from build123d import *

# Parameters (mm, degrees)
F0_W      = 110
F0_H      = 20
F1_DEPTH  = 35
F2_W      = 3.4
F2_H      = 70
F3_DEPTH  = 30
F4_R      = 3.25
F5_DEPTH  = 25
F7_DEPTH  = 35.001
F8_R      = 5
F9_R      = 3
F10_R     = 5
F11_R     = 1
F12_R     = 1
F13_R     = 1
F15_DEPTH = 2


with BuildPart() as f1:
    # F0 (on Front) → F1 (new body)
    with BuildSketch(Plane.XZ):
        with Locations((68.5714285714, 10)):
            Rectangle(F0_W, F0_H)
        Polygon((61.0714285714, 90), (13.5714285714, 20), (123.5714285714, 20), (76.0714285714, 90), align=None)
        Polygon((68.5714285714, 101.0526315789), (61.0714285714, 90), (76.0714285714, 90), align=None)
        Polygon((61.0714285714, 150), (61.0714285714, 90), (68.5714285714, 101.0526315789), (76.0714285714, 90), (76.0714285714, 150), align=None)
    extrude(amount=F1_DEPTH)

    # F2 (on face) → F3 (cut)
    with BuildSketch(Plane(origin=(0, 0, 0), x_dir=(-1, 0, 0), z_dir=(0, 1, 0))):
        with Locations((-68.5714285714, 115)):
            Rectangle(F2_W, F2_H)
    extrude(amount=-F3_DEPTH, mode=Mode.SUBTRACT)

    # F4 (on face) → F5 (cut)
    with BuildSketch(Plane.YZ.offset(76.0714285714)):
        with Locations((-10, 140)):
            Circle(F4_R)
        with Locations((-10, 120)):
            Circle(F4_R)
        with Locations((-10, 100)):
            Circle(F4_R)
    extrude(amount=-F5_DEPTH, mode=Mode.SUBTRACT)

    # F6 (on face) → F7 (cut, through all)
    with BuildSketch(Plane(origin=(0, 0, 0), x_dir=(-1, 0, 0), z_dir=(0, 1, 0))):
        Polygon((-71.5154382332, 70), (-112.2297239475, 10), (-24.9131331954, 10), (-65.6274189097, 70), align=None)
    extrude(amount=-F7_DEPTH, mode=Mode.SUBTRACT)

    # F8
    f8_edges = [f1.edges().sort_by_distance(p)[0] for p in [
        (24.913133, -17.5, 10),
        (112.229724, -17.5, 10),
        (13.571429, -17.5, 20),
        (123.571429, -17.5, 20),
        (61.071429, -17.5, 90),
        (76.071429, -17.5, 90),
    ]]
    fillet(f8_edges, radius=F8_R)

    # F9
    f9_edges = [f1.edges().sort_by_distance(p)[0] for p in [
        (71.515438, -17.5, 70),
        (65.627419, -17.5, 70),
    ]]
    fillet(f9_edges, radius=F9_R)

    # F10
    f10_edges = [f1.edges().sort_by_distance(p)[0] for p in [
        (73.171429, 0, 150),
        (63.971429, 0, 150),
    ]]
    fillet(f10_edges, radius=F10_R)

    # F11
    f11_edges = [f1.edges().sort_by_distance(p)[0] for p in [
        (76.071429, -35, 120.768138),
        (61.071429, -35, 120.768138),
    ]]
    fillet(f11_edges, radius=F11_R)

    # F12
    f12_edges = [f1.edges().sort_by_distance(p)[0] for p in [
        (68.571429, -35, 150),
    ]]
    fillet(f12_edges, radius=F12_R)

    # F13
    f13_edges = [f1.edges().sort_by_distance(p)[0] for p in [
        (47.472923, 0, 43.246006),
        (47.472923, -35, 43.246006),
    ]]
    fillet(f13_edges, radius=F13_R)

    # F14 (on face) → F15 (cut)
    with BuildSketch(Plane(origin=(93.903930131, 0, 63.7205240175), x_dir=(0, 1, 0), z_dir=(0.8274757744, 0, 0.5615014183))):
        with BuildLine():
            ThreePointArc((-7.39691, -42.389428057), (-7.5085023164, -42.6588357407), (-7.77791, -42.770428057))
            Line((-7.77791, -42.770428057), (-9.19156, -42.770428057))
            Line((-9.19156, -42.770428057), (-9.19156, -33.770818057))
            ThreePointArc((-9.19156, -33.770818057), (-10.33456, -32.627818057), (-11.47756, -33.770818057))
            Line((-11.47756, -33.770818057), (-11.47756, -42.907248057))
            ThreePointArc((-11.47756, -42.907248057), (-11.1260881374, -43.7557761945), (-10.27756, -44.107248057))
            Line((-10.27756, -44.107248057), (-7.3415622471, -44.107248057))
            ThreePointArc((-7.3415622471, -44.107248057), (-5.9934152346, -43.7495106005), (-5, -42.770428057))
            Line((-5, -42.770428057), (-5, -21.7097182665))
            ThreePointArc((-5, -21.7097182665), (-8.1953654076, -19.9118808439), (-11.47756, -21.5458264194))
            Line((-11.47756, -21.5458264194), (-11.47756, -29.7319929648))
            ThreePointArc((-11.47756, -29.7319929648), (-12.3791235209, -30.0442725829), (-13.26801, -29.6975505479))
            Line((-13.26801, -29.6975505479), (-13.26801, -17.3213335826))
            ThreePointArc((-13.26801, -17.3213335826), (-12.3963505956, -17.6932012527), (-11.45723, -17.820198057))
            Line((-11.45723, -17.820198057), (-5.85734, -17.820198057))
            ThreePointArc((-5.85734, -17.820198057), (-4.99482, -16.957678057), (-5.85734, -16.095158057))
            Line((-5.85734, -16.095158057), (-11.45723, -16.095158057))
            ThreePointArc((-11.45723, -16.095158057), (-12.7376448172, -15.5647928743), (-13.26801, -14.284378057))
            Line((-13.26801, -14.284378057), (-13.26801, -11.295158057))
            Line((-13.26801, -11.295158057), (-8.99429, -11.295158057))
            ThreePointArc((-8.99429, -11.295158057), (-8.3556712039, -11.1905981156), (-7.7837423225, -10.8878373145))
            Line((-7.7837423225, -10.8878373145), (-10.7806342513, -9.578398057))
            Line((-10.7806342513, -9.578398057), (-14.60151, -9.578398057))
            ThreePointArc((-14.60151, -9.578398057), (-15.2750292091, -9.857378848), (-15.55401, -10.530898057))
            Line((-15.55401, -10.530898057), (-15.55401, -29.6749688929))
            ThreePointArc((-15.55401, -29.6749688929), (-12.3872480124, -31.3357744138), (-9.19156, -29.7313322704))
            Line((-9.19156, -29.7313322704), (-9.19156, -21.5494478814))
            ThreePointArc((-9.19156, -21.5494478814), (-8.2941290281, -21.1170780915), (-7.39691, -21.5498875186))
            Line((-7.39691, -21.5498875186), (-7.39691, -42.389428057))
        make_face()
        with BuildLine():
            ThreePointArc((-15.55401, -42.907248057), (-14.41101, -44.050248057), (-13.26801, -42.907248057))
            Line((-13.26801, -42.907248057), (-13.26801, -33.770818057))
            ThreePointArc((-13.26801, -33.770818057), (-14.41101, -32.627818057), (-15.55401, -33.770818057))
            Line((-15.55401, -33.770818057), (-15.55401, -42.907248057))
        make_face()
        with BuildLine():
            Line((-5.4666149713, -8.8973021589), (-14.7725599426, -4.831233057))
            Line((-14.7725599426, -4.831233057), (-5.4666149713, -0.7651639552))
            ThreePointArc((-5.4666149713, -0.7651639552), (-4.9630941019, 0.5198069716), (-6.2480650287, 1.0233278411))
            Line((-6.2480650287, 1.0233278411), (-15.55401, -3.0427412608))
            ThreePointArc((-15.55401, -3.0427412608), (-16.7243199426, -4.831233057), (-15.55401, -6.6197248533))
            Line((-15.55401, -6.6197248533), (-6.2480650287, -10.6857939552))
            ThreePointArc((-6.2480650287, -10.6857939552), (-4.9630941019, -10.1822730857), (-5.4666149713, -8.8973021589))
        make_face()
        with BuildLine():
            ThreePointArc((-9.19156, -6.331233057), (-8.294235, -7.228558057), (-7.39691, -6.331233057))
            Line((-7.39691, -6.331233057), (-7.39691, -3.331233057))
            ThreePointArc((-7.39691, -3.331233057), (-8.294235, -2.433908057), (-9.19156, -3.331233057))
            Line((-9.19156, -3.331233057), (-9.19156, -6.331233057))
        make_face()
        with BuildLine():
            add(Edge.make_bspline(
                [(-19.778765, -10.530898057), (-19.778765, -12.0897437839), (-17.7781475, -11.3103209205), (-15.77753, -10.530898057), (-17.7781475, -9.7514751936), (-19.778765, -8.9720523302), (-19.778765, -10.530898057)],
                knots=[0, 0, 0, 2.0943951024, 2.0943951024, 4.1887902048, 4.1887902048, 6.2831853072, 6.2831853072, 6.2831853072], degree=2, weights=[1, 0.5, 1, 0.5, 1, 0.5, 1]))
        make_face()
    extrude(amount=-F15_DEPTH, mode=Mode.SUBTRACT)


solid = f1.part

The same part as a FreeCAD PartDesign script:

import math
import FreeCAD as App
import Part
import Sketcher

V = App.Vector
Q = App.Units.Quantity


def edges_at(feature, points):
    """Names of the edges that pass closest to the given points."""
    edges = feature.Shape.Edges
    near = lambda p: min(range(len(edges)), key=lambda i: edges[i].distToShape(Part.Vertex(*p))[0])
    return sorted({f"Edge{near(p) + 1}" for p in points})


def add_polygon(sketch, points):
    """Adds a closed chain of lines whose ends are joined by coincident constraints."""
    first, n = sketch.GeometryCount, len(points)
    for a, b in zip(points, points[1:] + points[:1]):
        sketch.addGeometry(Part.LineSegment(App.Vector(*a, 0), App.Vector(*b, 0)), False)
    for i in range(n):
        sketch.addConstraint(Sketcher.Constraint("Coincident", first + i, 2, first + (i + 1) % n, 1))

doc = App.newDocument("Part")
body = doc.addObject("PartDesign::Body", "Body")

# Sketch on XZ plane
sketch1 = doc.addObject("Sketcher::SketchObject", "Sketch")
body.addObject(sketch1)
sketch1.AttachmentSupport = (doc.XZ_Plane, [""])
sketch1.MapMode = "FlatFace"
add_polygon(sketch1, [(14, 20), (14, 0), (124, 0), (124, 20), (76, 90), (76, 150), (61, 150), (61, 90)])  # lines 0-7
sketch1.addConstraint([
    Sketcher.Constraint("Vertical", 0),
    Sketcher.Constraint("Horizontal", 1),
    Sketcher.Constraint("Vertical", 2),
    Sketcher.Constraint("Vertical", 4),
    Sketcher.Constraint("Horizontal", 5),
    Sketcher.Constraint("Vertical", 6),
    Sketcher.Constraint("PointOnObject", 0, 2, -1),
    Sketcher.Constraint("Horizontal", 3, 2, 6, 2),
    Sketcher.Constraint("Horizontal", 2, 2, 7, 2),
    Sketcher.Constraint("Equal", 3, 7),
    Sketcher.Constraint("DistanceX", 1, 1, 1, 2, Q("110 mm")),
    Sketcher.Constraint("DistanceX", 5, 2, 5, 1, Q("15 mm")),
    Sketcher.Constraint("DistanceY", 0, 2, 0, 1, Q("20 mm")),
    Sketcher.Constraint("DistanceY", 4, 1, 4, 2, Q("60 mm")),
    Sketcher.Constraint("DistanceY", -1, 1, 3, 2, Q("90 mm")),
    Sketcher.Constraint("DistanceX", -1, 1, 0, 2, Q("13.571429 mm")),
])
pad1 = doc.addObject("PartDesign::Pad", "Pad")
body.addObject(pad1)
pad1.Profile = sketch1
pad1.Length = 35

# Sketch on XZ plane
sketch2 = doc.addObject("Sketcher::SketchObject", "Sketch001")
body.addObject(sketch2)
sketch2.AttachmentSupport = (doc.XZ_Plane, [""])
sketch2.MapMode = "FlatFace"
add_polygon(sketch2, [(70.3, 150), (70.3, 80), (66.9, 80), (66.9, 150)])  # lines 0-3
sketch2.addConstraint([
    Sketcher.Constraint("Vertical", 0),
    Sketcher.Constraint("Horizontal", 1),
    Sketcher.Constraint("Vertical", 2),
    Sketcher.Constraint("Horizontal", 3),
    Sketcher.Constraint("DistanceY", 0, 2, 0, 1, Q("70 mm")),
    Sketcher.Constraint("DistanceX", 1, 2, 1, 1, Q("3.4 mm")),
    Sketcher.Constraint("DistanceY", -1, 1, 0, 2, Q("80 mm")),
    Sketcher.Constraint("DistanceX", -1, 1, 0, 2, Q("70.271429 mm")),
])
pocket1 = doc.addObject("PartDesign::Pocket", "Pocket")
body.addObject(pocket1)
pocket1.Profile = sketch2
pocket1.Length = 30
pocket1.Reversed = True

# Sketch on YZ plane
sketch3 = doc.addObject("Sketcher::SketchObject", "Sketch002")
body.addObject(sketch3)
sketch3.AttachmentSupport = (doc.YZ_Plane, [""])
sketch3.MapMode = "FlatFace"
sketch3.AttachmentOffset = App.Placement(V(0, 0, 76.071429), App.Rotation())
sketch3.addGeometry([
    Part.Circle(V(-10, 140, 0), V(0, 0, 1), 3.2),
    Part.Circle(V(-10, 120, 0), V(0, 0, 1), 3.2),
    Part.Circle(V(-10, 100, 0), V(0, 0, 1), 3.2),
], False)
sketch3.addConstraint([
    Sketcher.Constraint("Equal", 0, 1),
    Sketcher.Constraint("Equal", 1, 2),
    Sketcher.Constraint("Vertical", 0, 3, 1, 3),
    Sketcher.Constraint("Vertical", 1, 3, 2, 3),
    Sketcher.Constraint("Diameter", 0, Q("6.5 mm")),
    Sketcher.Constraint("DistanceX", 0, 3, -1, 1, Q("10 mm")),
    Sketcher.Constraint("DistanceY", -1, 1, 0, 3, Q("140 mm")),
    Sketcher.Constraint("DistanceY", -1, 1, 1, 3, Q("120 mm")),
    Sketcher.Constraint("DistanceY", -1, 1, 2, 3, Q("100 mm")),
])
pocket2 = doc.addObject("PartDesign::Pocket", "Pocket001")
body.addObject(pocket2)
pocket2.Profile = sketch3
pocket2.Length = 25

# Sketch on XZ plane
sketch4 = doc.addObject("Sketcher::SketchObject", "Sketch003")
body.addObject(sketch4)
sketch4.AttachmentSupport = (doc.XZ_Plane, [""])
sketch4.MapMode = "FlatFace"
add_polygon(sketch4, [(72, 70), (112, 10), (25, 10), (66, 70)])  # lines 0-3
sketch4.addConstraint([
    Sketcher.Constraint("Horizontal", 1),
    Sketcher.Constraint("Horizontal", 3),
    Sketcher.Constraint("Equal", 0, 2),
    Sketcher.Constraint("DistanceY", -1, 1, 0, 2, Q("10 mm")),
    Sketcher.Constraint("DistanceY", -1, 1, 2, 2, Q("70 mm")),
    Sketcher.Constraint("DistanceX", 1, 2, 1, 1, Q("87.316591 mm")),
    Sketcher.Constraint("DistanceX", 3, 1, 3, 2, Q("5.888019 mm")),
    Sketcher.Constraint("DistanceX", -1, 1, 2, 2, Q("65.627419 mm")),
])
pocket3 = doc.addObject("PartDesign::Pocket", "Pocket002")
body.addObject(pocket3)
pocket3.Profile = sketch4
pocket3.Type = "ThroughAll"
pocket3.Reversed = True
doc.recompute()

fillet = doc.addObject("PartDesign::Fillet", "Fillet")
body.addObject(fillet)
fillet.Base = (pocket3, edges_at(pocket3, [
    (24.913, -17.5, 10),
    (112.23, -17.5, 10),
    (13.571, -17.5, 20),
    (123.571, -17.5, 20),
    (61.071, -17.5, 90),
    (76.071, -17.5, 90),
]))
fillet.Radius = 5
doc.recompute()

fillet2 = doc.addObject("PartDesign::Fillet", "Fillet001")
body.addObject(fillet2)
fillet2.Base = (fillet, edges_at(fillet, [(71.515, -17.5, 70), (65.627, -17.5, 70)]))
fillet2.Radius = 3
doc.recompute()

fillet3 = doc.addObject("PartDesign::Fillet", "Fillet002")
body.addObject(fillet3)
fillet3.Base = (fillet2, edges_at(fillet2, [(73.171, 0, 150), (63.971, 0, 150)]))
fillet3.Radius = 5
doc.recompute()

fillet4 = doc.addObject("PartDesign::Fillet", "Fillet003")
body.addObject(fillet4)
fillet4.Base = (fillet3, edges_at(fillet3, [(76.071, -35, 120.768), (61.071, -35, 120.768)]))
fillet4.Radius = 1
doc.recompute()

fillet5 = doc.addObject("PartDesign::Fillet", "Fillet004")
body.addObject(fillet5)
fillet5.Base = (fillet4, edges_at(fillet4, [(68.571, -35, 150)]))
fillet5.Radius = 1
doc.recompute()

fillet6 = doc.addObject("PartDesign::Fillet", "Fillet005")
body.addObject(fillet6)
fillet6.Base = (fillet5, edges_at(fillet5, [(47.473, 0, 43.246), (47.473, -35, 43.246)]))
fillet6.Radius = 1

# Sketch on an angled plane
sketch5 = doc.addObject("Sketcher::SketchObject", "Sketch004")
body.addObject(sketch5)
sketch5.Placement = App.Placement(V(93.90393, 0, 63.720524), App.Rotation(V(0, 1, 0), V(-0.561501418, 0, 0.827475774), V(0.827475774, 0, 0.561501418), "ZXY"))
sketch5.addGeometry([
    Part.ArcOfCircle(Part.Circle(V(-7.77791, -42.389428, 0), V(0, 0, 1), 0.381), math.radians(-90), math.radians(0)),  # 0
    Part.LineSegment(V(-7.77791, -42.770428, 0), V(-9.19156, -42.770428, 0)),  # 1
    Part.LineSegment(V(-9.19156, -42.770428, 0), V(-9.19156, -33.770818, 0)),  # 2
    Part.ArcOfCircle(Part.Circle(V(-10.33456, -33.770818, 0), V(0, 0, 1), 1.143), math.radians(0), math.radians(180)),  # 3
    Part.LineSegment(V(-11.47756, -33.770818, 0), V(-11.47756, -42.907248, 0)),  # 4
    Part.ArcOfCircle(Part.Circle(V(-10.27756, -42.907248, 0), V(0, 0, 1), 1.2), math.radians(180), math.radians(270)),  # 5
    Part.LineSegment(V(-10.27756, -44.107248, 0), V(-7.341562, -44.107248, 0)),  # 6
    Part.ArcOfCircle(Part.Circle(V(-7.341562, -41.388108, 0), V(0, 0, 1), 2.71914), math.radians(-90), math.radians(-30.555092)),  # 7
    Part.LineSegment(V(-5, -42.770428, 0), V(-5, -21.709718, 0)),  # 8
    Part.ArcOfCircle(Part.Circle(V(-8.29441, -23.826458, 0), V(0, 0, 1), 3.91583), math.radians(32.721746), math.radians(144.379536)),  # 9
    Part.LineSegment(V(-11.47756, -21.545826, 0), V(-11.47756, -29.731993, 0)),  # 10
    Part.ArcOfCircle(Part.Circle(V(-12.35256, -28.663398, 0), V(0, 0, 1), 1.38113), math.radians(-131.51582), math.radians(-50.688276)),  # 11
    Part.LineSegment(V(-13.26801, -29.697551, 0), V(-13.26801, -17.321334, 0)),  # 12
    Part.ArcOfCircle(Part.Circle(V(-11.45723, -14.284378, 0), V(0, 0, 1), 3.53582), math.radians(-120.805445), math.radians(-90)),  # 13
    Part.LineSegment(V(-11.45723, -17.820198, 0), V(-5.85734, -17.820198, 0)),  # 14
    Part.ArcOfCircle(Part.Circle(V(-5.85734, -16.957678, 0), V(0, 0, 1), 0.86252), math.radians(-90), math.radians(90)),  # 15
    Part.LineSegment(V(-5.85734, -16.095158, 0), V(-11.45723, -16.095158, 0)),  # 16
    Part.ArcOfCircle(Part.Circle(V(-11.45723, -14.284378, 0), V(0, 0, 1), 1.81078), math.radians(180), math.radians(270)),  # 17
    Part.LineSegment(V(-13.26801, -14.284378, 0), V(-13.26801, -11.295158, 0)),  # 18
    Part.LineSegment(V(-13.26801, -11.295158, 0), V(-8.99429, -11.295158, 0)),  # 19
    Part.ArcOfCircle(Part.Circle(V(-8.99429, -9.292638, 0), V(0, 0, 1), 2.00252), math.radians(-90), math.radians(-52.806255)),  # 20
    Part.LineSegment(V(-7.783742, -10.887837, 0), V(-10.780634, -9.578398, 0)),  # 21
    Part.LineSegment(V(-10.780634, -9.578398, 0), V(-14.60151, -9.578398, 0)),  # 22
    Part.ArcOfCircle(Part.Circle(V(-14.60151, -10.530898, 0), V(0, 0, 1), 0.9525), math.radians(90), math.radians(180)),  # 23
    Part.LineSegment(V(-15.55401, -10.530898, 0), V(-15.55401, -29.674969, 0)),  # 24
    Part.ArcOfCircle(Part.Circle(V(-12.35256, -27.420098, 0), V(0, 0, 1), 3.91583), math.radians(-144.841892), math.radians(-36.17322)),  # 25
    Part.LineSegment(V(-9.19156, -29.731332, 0), V(-9.19156, -21.549448, 0)),  # 26
    Part.ArcOfCircle(Part.Circle(V(-8.29441, -22.264038, 0), V(0, 0, 1), 1.14696), math.radians(38.509649), math.radians(141.46228)),  # 27
    Part.LineSegment(V(-7.39691, -21.549887, 0), V(-7.39691, -42.389428, 0)),  # 28
    Part.ArcOfCircle(Part.Circle(V(-14.41101, -42.907248, 0), V(0, 0, 1), 1.143), math.radians(180), math.radians(360)),  # 29
    Part.LineSegment(V(-13.26801, -42.907248, 0), V(-13.26801, -33.770818, 0)),  # 30
    Part.ArcOfCircle(Part.Circle(V(-14.41101, -33.770818, 0), V(0, 0, 1), 1.143), math.radians(0), math.radians(180)),  # 31
    Part.LineSegment(V(-15.55401, -33.770818, 0), V(-15.55401, -42.907248, 0)),  # 32
    Part.LineSegment(V(-5.466615, -8.897302, 0), V(-14.77256, -4.831233, 0)),  # 33
    Part.LineSegment(V(-14.77256, -4.831233, 0), V(-5.466615, -0.765164, 0)),  # 34
    Part.ArcOfCircle(Part.Circle(V(-5.85734, 0.129082, 0), V(0, 0, 1), 0.97588), math.radians(-66.397923), math.radians(113.602077)),  # 35
    Part.LineSegment(V(-6.248065, 1.023328, 0), V(-15.55401, -3.042741, 0)),  # 36
    Part.ArcOfCircle(Part.Circle(V(-14.77256, -4.831233, 0), V(0, 0, 1), 1.95176), math.radians(113.602077), math.radians(246.397923)),  # 37
    Part.LineSegment(V(-15.55401, -6.619725, 0), V(-6.248065, -10.685794, 0)),  # 38
    Part.ArcOfCircle(Part.Circle(V(-5.85734, -9.791548, 0), V(0, 0, 1), 0.97588), math.radians(-113.602077), math.radians(66.397923)),  # 39
    Part.ArcOfCircle(Part.Circle(V(-8.294235, -6.331233, 0), V(0, 0, 1), 0.897325), math.radians(180), math.radians(360)),  # 40
    Part.LineSegment(V(-7.39691, -6.331233, 0), V(-7.39691, -3.331233, 0)),  # 41
    Part.ArcOfCircle(Part.Circle(V(-8.294235, -3.331233, 0), V(0, 0, 1), 0.897325), math.radians(0), math.radians(180)),  # 42
    Part.LineSegment(V(-9.19156, -3.331233, 0), V(-9.19156, -6.331233, 0)),  # 43
    Part.BSplineCurve([V(-19.778765, -10.530898, 0), V(-19.778765, -12.089744, 0), V(-17.778147, -11.310321, 0), V(-15.77753, -10.530898, 0), V(-17.778147, -9.751475, 0), V(-19.778765, -8.972052, 0), V(-19.778765, -10.530898, 0)], [3, 2, 2, 3], [0, 2.094395102, 4.188790205, 6.283185307], False, 2, [1, 0.5, 1, 0.5, 1, 0.5, 1], False),  # 44
], False)
sketch5.addConstraint([
    Sketcher.Constraint("Block", 44),
    Sketcher.Constraint("Tangent", 0, 1, 1, 1),
    Sketcher.Constraint("Coincident", 1, 2, 2, 1),
    Sketcher.Constraint("Tangent", 2, 2, 3, 1),
    Sketcher.Constraint("Tangent", 3, 2, 4, 1),
    Sketcher.Constraint("Tangent", 4, 2, 5, 1),
    Sketcher.Constraint("Tangent", 5, 2, 6, 1),
    Sketcher.Constraint("Tangent", 6, 2, 7, 1),
    Sketcher.Constraint("Coincident", 7, 2, 8, 1),
    Sketcher.Constraint("Coincident", 8, 2, 9, 1),
    Sketcher.Constraint("Coincident", 9, 2, 10, 1),
    Sketcher.Constraint("Coincident", 10, 2, 11, 2),
    Sketcher.Constraint("Coincident", 11, 1, 12, 1),
    Sketcher.Constraint("Coincident", 12, 2, 13, 1),
    Sketcher.Constraint("Tangent", 13, 2, 14, 1),
    Sketcher.Constraint("Tangent", 14, 2, 15, 1),
    Sketcher.Constraint("Tangent", 15, 2, 16, 1),
    Sketcher.Constraint("Tangent", 16, 2, 17, 2),
    Sketcher.Constraint("Tangent", 17, 1, 18, 1),
    Sketcher.Constraint("Coincident", 18, 2, 19, 1),
    Sketcher.Constraint("Tangent", 19, 2, 20, 1),
    Sketcher.Constraint("Coincident", 20, 2, 21, 1),
    Sketcher.Constraint("Coincident", 21, 2, 22, 1),
    Sketcher.Constraint("Tangent", 22, 2, 23, 1),
    Sketcher.Constraint("Tangent", 23, 2, 24, 1),
    Sketcher.Constraint("Coincident", 24, 2, 25, 1),
    Sketcher.Constraint("Coincident", 25, 2, 26, 1),
    Sketcher.Constraint("Coincident", 26, 2, 27, 2),
    Sketcher.Constraint("Coincident", 27, 1, 28, 1),
    Sketcher.Constraint("Tangent", 28, 2, 0, 2),
    Sketcher.Constraint("Tangent", 29, 2, 30, 1),
    Sketcher.Constraint("Tangent", 30, 2, 31, 1),
    Sketcher.Constraint("Tangent", 31, 2, 32, 1),
    Sketcher.Constraint("Tangent", 32, 2, 29, 1),
    Sketcher.Constraint("Coincident", 33, 2, 34, 1),
    Sketcher.Constraint("Tangent", 34, 2, 35, 1),
    Sketcher.Constraint("Tangent", 35, 2, 36, 1),
    Sketcher.Constraint("Tangent", 36, 2, 37, 1),
    Sketcher.Constraint("Tangent", 37, 2, 38, 1),
    Sketcher.Constraint("Tangent", 38, 2, 39, 1),
    Sketcher.Constraint("Tangent", 39, 2, 33, 1),
    Sketcher.Constraint("Tangent", 40, 2, 41, 1),
    Sketcher.Constraint("Tangent", 41, 2, 42, 1),
    Sketcher.Constraint("Tangent", 42, 2, 43, 1),
    Sketcher.Constraint("Tangent", 43, 2, 40, 1),
    Sketcher.Constraint("Horizontal", 1),
    Sketcher.Constraint("Vertical", 2),
    Sketcher.Constraint("Vertical", 4),
    Sketcher.Constraint("Horizontal", 6),
    Sketcher.Constraint("Vertical", 8),
    Sketcher.Constraint("Vertical", 10),
    Sketcher.Constraint("Vertical", 12),
    Sketcher.Constraint("Horizontal", 14),
    Sketcher.Constraint("Horizontal", 16),
    Sketcher.Constraint("Vertical", 18),
    Sketcher.Constraint("Horizontal", 19),
    Sketcher.Constraint("Horizontal", 22),
    Sketcher.Constraint("Vertical", 24),
    Sketcher.Constraint("Vertical", 26),
    Sketcher.Constraint("Vertical", 28),
    Sketcher.Constraint("Vertical", 30),
    Sketcher.Constraint("Vertical", 32),
    Sketcher.Constraint("Vertical", 41),
    Sketcher.Constraint("Vertical", 43),
    Sketcher.Constraint("Coincident", 17, 3, 13, 3),
    Sketcher.Constraint("Coincident", 33, 2, 37, 3),
    Sketcher.Constraint("Equal", 9, 25),
    Sketcher.Constraint("Equal", 3, 29),
    Sketcher.Constraint("Equal", 35, 39),
    Sketcher.Constraint("Parallel", 21, 33),
    Sketcher.Constraint("Parallel", 34, 36),
    Sketcher.Constraint("Horizontal", 5, 3, 29, 3),
    Sketcher.Constraint("Horizontal", 3, 3, 31, 3),
    Sketcher.Constraint("Horizontal", 1, 2, 7, 2),
    Sketcher.Constraint("Vertical", 11, 3, 25, 3),
    Sketcher.Constraint("Vertical", 9, 3, 27, 3),
    Sketcher.Constraint("Vertical", 15, 3, 35, 3),
    Sketcher.Constraint("Vertical", 35, 3, 39, 3),
    Sketcher.Constraint("Vertical", 4, 2, 9, 2),
    Sketcher.Constraint("Vertical", 12, 2, 17, 1),
    Sketcher.Constraint("Vertical", 2, 2, 25, 2),
    Sketcher.Constraint("Vertical", 18, 2, 29, 2),
    Sketcher.Constraint("Vertical", 24, 2, 31, 2),
    Sketcher.Constraint("Vertical", 32, 2, 36, 2),
    Sketcher.Constraint("Vertical", 36, 2, 37, 2),
    Sketcher.Constraint("Vertical", 28, 2, 40, 2),
    Sketcher.Constraint("Vertical", 26, 2, 42, 2),
    Sketcher.Constraint("Radius", 5, Q("1.2 mm")),
    Sketcher.Constraint("DistanceY", 41, 1, 41, 2, Q("3 mm")),
    Sketcher.Constraint("DistanceX", 7, 2, -1, 1, Q("5 mm")),
    Sketcher.Constraint("Radius", 0, Q("0.381 mm")),
    Sketcher.Constraint("Radius", 3, Q("1.143 mm")),
    Sketcher.Constraint("Radius", 23, Q("0.9525 mm")),
    Sketcher.Constraint("Radius", 7, Q("2.71914 mm")),
    Sketcher.Constraint("Radius", 9, Q("3.91583 mm")),
    Sketcher.Constraint("Radius", 11, Q("1.38113 mm")),
    Sketcher.Constraint("Radius", 13, Q("3.53582 mm")),
    Sketcher.Constraint("Radius", 15, Q("0.86252 mm")),
    Sketcher.Constraint("Radius", 20, Q("2.00252 mm")),
    Sketcher.Constraint("Radius", 27, Q("1.14696 mm")),
    Sketcher.Constraint("Radius", 35, Q("0.97588 mm")),
    Sketcher.Constraint("Radius", 40, Q("0.897325 mm")),
    Sketcher.Constraint("DistanceX", 14, 1, 14, 2, Q("5.59989 mm")),
    Sketcher.Constraint("DistanceX", 19, 1, 19, 2, Q("4.27372 mm")),
    Sketcher.Constraint("DistanceY", 2, 1, 2, 2, Q("8.99961 mm")),
    Sketcher.Constraint("DistanceY", 4, 2, 4, 1, Q("9.13643 mm")),
    Sketcher.Constraint("DistanceY", 8, 1, 8, 2, Q("21.06071 mm")),
    Sketcher.Constraint("DistanceY", 18, 1, 18, 2, Q("2.98922 mm")),
    Sketcher.Constraint("DistanceY", 24, 2, 24, 1, Q("19.144071 mm")),
    Sketcher.Constraint("DistanceY", 28, 2, 28, 1, Q("20.839541 mm")),
    Sketcher.Constraint("DistanceY", 11, 3, -1, 1, Q("28.663398 mm")),
    Sketcher.Constraint("DistanceY", 23, 3, -1, 1, Q("10.530898 mm")),
    Sketcher.Constraint("DistanceY", 25, 3, -1, 1, Q("27.420098 mm")),
    Sketcher.Constraint("DistanceY", 13, 2, -1, 1, Q("17.820198 mm")),
    Sketcher.Constraint("DistanceX", 6, 1, 6, 2, Q("2.935998 mm")),
    Sketcher.Constraint("DistanceX", 22, 2, 22, 1, Q("3.820876 mm")),
    Sketcher.Constraint("DistanceY", 10, 2, 10, 1, Q("8.186167 mm")),
    Sketcher.Constraint("DistanceY", 26, 1, 26, 2, Q("8.181884 mm")),
    Sketcher.Constraint("DistanceY", 0, 3, -1, 1, Q("42.389428 mm")),
    Sketcher.Constraint("DistanceY", -1, 1, 35, 3, Q("0.129082 mm")),
    Sketcher.Constraint("DistanceX", 37, 3, -1, 1, Q("14.77256 mm")),
    Sketcher.Constraint("DistanceY", 40, 3, -1, 1, Q("6.331233 mm")),
])
pocket4 = doc.addObject("PartDesign::Pocket", "Pocket003")
body.addObject(pocket4)
pocket4.Profile = sketch5
pocket4.Length = 2

doc.recompute()
